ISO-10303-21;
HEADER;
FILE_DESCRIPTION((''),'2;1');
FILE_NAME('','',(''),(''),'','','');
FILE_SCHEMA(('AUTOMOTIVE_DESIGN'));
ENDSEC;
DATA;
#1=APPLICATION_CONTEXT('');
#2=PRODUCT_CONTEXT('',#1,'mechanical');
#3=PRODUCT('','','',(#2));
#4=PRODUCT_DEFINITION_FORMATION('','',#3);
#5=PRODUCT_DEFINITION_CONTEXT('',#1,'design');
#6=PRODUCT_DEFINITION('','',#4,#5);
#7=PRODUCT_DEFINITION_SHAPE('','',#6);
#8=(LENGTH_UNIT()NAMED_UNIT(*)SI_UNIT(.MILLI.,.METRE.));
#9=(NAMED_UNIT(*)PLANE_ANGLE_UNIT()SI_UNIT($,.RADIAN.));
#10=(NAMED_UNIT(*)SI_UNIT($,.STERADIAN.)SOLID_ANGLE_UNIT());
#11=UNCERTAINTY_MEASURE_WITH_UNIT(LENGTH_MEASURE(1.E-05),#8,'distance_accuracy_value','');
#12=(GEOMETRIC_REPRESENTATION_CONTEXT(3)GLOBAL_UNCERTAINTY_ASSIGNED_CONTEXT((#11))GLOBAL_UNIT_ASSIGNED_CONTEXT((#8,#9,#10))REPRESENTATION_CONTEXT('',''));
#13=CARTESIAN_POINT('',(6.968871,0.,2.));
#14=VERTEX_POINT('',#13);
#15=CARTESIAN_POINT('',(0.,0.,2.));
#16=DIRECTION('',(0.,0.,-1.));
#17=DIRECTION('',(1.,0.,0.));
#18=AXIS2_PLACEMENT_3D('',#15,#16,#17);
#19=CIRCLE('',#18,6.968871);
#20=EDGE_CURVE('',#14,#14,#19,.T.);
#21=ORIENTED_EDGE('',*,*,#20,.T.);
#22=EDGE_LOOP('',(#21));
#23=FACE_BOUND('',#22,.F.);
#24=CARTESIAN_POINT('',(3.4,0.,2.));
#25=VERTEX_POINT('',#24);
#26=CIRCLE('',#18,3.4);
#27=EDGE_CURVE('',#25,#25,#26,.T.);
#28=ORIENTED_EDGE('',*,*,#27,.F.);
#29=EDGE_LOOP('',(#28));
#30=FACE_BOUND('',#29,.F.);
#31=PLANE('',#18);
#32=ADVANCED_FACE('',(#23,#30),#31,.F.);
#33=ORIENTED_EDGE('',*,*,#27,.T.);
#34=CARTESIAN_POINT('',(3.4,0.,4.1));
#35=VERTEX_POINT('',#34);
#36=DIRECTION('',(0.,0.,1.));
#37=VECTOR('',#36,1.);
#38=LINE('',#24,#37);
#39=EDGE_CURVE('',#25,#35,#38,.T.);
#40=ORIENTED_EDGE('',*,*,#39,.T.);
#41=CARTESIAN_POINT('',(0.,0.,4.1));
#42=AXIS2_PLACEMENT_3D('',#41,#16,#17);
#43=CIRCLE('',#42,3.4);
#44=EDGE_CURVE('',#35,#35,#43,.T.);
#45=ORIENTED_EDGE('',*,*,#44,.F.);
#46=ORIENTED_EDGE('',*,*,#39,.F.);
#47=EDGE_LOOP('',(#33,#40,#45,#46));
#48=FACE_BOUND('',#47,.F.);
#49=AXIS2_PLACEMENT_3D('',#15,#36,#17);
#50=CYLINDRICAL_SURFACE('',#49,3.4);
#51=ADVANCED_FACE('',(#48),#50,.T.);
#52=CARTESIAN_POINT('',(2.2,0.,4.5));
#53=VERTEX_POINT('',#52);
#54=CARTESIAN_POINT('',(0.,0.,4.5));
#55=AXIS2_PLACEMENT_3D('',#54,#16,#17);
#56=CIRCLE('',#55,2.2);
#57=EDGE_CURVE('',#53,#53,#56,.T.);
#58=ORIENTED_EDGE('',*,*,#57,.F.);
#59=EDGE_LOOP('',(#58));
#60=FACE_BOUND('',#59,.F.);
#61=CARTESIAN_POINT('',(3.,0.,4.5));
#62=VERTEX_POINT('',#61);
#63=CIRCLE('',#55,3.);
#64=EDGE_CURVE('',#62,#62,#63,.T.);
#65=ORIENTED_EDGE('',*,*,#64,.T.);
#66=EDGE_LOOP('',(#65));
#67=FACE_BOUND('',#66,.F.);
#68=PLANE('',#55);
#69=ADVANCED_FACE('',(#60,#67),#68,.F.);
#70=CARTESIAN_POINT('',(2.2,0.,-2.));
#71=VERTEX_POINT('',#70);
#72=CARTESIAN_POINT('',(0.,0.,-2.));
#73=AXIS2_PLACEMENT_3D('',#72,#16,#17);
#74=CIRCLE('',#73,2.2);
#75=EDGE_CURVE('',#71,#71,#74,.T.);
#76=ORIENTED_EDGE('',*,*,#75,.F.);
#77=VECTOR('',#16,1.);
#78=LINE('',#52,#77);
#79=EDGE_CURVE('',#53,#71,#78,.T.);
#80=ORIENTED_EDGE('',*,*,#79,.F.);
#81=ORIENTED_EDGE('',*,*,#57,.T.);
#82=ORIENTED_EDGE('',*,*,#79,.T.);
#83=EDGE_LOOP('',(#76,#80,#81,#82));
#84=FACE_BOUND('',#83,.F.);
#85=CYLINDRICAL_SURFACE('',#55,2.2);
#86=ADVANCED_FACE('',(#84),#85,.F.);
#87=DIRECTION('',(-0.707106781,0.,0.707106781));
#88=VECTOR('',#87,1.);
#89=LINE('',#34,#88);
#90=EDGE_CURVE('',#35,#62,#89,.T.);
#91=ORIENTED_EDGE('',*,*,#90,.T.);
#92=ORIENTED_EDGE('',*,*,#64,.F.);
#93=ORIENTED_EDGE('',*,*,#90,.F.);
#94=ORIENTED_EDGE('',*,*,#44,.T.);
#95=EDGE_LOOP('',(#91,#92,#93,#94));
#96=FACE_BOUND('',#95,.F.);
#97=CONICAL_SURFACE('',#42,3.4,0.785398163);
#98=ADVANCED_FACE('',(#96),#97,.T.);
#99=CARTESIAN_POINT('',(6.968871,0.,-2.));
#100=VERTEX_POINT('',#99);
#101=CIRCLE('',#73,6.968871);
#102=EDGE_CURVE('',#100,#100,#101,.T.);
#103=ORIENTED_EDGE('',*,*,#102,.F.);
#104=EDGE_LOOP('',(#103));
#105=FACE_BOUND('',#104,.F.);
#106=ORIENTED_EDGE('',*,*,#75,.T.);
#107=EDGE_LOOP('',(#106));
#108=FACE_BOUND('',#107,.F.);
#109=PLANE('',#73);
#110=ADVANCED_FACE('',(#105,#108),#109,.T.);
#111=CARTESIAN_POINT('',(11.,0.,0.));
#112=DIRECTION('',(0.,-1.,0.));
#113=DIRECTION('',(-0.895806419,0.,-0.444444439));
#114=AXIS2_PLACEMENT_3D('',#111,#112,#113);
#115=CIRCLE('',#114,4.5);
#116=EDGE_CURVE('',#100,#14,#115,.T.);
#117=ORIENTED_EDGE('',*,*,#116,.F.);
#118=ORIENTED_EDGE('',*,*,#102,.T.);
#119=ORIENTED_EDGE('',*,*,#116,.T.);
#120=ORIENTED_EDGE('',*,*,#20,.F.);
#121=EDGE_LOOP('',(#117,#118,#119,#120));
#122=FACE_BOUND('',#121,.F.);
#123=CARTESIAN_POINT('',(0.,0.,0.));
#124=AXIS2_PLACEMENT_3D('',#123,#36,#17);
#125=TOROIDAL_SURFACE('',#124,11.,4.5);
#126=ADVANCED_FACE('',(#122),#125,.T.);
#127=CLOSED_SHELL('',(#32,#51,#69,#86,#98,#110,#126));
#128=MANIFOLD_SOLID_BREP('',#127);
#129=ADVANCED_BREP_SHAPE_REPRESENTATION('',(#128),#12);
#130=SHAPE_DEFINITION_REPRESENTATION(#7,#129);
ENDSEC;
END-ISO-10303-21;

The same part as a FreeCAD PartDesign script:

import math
import FreeCAD as App
import Part
import Sketcher

V = App.Vector


def edges_at(feature, points):
    """Names of the edges that pass closest to the given points."""
    edges = feature.Shape.Edges
    near = lambda p: min(range(len(edges)), key=lambda i: edges[i].distToShape(Part.Vertex(*p))[0])
    return sorted({f"Edge{near(p) + 1}" for p in points})

doc = App.newDocument("Part")
body = doc.addObject("PartDesign::Body", "Body")

sketch1 = body.newObject("Sketcher::SketchObject", "Sketch")
sketch1.AttachmentSupport = (doc.getObject("XZ_Plane"), [""])
sketch1.MapMode = "FlatFace"
sketch1.addGeometry([
    Part.LineSegment(V(2.2, -2, 0), V(7, -2, 0)),
    Part.ArcOfCircle(Part.Circle(V(11, 0, 0), V(0, 0, 1), 4.5), math.radians(-154), math.radians(154)),
    Part.LineSegment(V(7, 2, 0), V(3.4, 2, 0)),
    Part.LineSegment(V(3.4, 2, 0), V(3.4, 4.5, 0)),
    Part.LineSegment(V(3.4, 4.5, 0), V(2.2, 4.5, 0)),
    Part.LineSegment(V(2.2, 4.5, 0), V(2.2, -2, 0)),
], False)
sketch1.addConstraint([
    Sketcher.Constraint("Coincident", 0, 2, 1, 1),
    Sketcher.Constraint("Coincident", 1, 2, 2, 1),
    Sketcher.Constraint("Coincident", 2, 2, 3, 1),
    Sketcher.Constraint("Coincident", 3, 2, 4, 1),
    Sketcher.Constraint("Coincident", 4, 2, 5, 1),
    Sketcher.Constraint("Coincident", 5, 2, 0, 1),
    Sketcher.Constraint("Horizontal", 0),
    Sketcher.Constraint("Horizontal", 2),
    Sketcher.Constraint("Vertical", 3),
    Sketcher.Constraint("Horizontal", 4),
    Sketcher.Constraint("Vertical", 5),
    Sketcher.Constraint("Symmetric", 0, 2, 1, 2, -1),
    Sketcher.Constraint("Radius", 1, 4.5),
    Sketcher.Constraint("DistanceX", 4, 2, 4, 1, 1.2),
    Sketcher.Constraint("DistanceY", 3, 1, 3, 2, 2.5),
    Sketcher.Constraint("DistanceY", 5, 2, 5, 1, 6.5),
    Sketcher.Constraint("DistanceX", -1, 1, 1, 3, 11.0),
    Sketcher.Constraint("DistanceX", -1, 1, 2, 2, 3.4),
])
revolution = body.newObject("PartDesign::Revolution", "Revolution")
revolution.Profile = sketch1
revolution.ReferenceAxis = (sketch1, ["V_Axis"])
revolution.Angle = 360
doc.recompute()

chamfer = body.newObject("PartDesign::Chamfer", "Chamfer")
chamfer.Base = (revolution, edges_at(revolution, [(-3.4, 0, 4.5)]))
chamfer.Size = 0.4

doc.recompute()
